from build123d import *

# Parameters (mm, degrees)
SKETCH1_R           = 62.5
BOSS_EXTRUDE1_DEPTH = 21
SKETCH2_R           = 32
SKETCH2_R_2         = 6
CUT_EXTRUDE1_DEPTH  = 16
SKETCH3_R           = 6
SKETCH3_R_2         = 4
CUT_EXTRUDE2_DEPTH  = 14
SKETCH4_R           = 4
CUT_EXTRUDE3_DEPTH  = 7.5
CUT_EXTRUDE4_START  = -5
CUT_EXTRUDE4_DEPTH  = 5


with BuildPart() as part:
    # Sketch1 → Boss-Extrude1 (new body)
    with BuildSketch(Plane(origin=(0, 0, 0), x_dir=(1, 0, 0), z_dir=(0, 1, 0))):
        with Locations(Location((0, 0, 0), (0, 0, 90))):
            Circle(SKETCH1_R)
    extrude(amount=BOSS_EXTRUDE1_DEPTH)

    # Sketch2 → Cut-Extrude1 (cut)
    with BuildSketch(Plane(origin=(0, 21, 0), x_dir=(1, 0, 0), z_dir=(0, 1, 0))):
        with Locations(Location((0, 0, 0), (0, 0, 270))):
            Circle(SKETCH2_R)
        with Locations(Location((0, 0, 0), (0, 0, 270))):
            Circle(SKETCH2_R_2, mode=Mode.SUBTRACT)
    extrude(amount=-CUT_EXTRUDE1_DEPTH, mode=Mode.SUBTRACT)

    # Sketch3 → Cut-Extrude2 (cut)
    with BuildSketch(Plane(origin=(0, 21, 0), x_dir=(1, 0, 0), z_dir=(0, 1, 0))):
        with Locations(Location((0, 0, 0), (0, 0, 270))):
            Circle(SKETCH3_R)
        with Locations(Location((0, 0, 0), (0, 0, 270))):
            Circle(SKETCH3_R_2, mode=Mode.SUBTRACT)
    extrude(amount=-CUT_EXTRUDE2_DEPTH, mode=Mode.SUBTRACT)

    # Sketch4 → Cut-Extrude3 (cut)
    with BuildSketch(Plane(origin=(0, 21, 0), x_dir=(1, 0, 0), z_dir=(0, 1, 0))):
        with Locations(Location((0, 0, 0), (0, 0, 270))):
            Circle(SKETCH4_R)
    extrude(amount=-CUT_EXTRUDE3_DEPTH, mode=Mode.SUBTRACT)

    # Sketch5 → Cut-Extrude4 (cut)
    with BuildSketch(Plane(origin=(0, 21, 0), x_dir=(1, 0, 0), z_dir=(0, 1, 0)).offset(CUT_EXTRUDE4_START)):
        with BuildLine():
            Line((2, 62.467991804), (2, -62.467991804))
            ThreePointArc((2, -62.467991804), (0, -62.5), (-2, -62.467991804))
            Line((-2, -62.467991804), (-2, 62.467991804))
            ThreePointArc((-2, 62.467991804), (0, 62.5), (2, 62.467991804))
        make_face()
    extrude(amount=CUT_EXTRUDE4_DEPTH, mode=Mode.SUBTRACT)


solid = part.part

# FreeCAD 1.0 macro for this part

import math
import FreeCAD as App
import Part
import Sketcher
from FreeCAD import Vector
Q = App.Units.Quantity

doc = App.newDocument("Part")
params = doc.addObject("Spreadsheet::Sheet", "Params")
for row, (alias, value) in enumerate([
    ("sketch1_diameter", "125 mm"),
    ("pad1_length", "21 mm"),
    ("sketch2_diameter", "64 mm"),
    ("sketch2_diameter2", "12 mm"),
    ("pocket1_length", "16 mm"),
    ("sketch3_diameter", "12 mm"),
    ("sketch3_diameter2", "8 mm"),
    ("pocket2_length", "14 mm"),
    ("sketch4_diameter", "8 mm"),
    ("pocket3_length", "7.5 mm"),
    ("sketch5_radius", "62.5 mm"),
    ("pocket4_length", "5 mm"),
], start=1):
    params.set(f"A{row}", alias)
    params.set(f"B{row}", "=" + value)
    params.setAlias(f"B{row}", alias)

body = doc.addObject("PartDesign::Body", "Body")

# Sketch on XZ plane
sketch1 = body.newObject("Sketcher::SketchObject", "Sketch")
sketch1.AttachmentSupport = (doc.getObject("XZ_Plane"), [""])
sketch1.MapMode = "FlatFace"
sketch1.addGeometry(Part.Circle(Vector(0, 0, 0), Vector(0, 0, 1), 62), False)
sketch1.addConstraint([
    Sketcher.Constraint("Coincident", 0, 3, -1, 1),
    Sketcher.Constraint("Diameter", 0, Q("125 mm")),
])
sketch1.setExpression("Constraints[1]", "Params.sketch1_diameter")
pad1 = body.newObject("PartDesign::Pad", "Pad")
pad1.Profile = sketch1
pad1.setExpression("Length", "Params.pad1_length")
pad1.Reversed = True

# Sketch on XZ plane
sketch2 = body.newObject("Sketcher::SketchObject", "Sketch001")
sketch2.AttachmentSupport = (doc.getObject("XZ_Plane"), [""])
sketch2.MapMode = "FlatFace"
sketch2.AttachmentOffset = App.Placement(Vector(0, 0, -21), App.Rotation())
sketch2.addGeometry([
    Part.Circle(Vector(0, 0, 0), Vector(0, 0, 1), 32),
    Part.Circle(Vector(0, 0, 0), Vector(0, 0, 1), 6),
], False)
sketch2.addConstraint([
    Sketcher.Constraint("Coincident", 0, 3, -1, 1),
    Sketcher.Constraint("Coincident", 1, 3, -1, 1),
    Sketcher.Constraint("Diameter", 0, Q("64 mm")),
    Sketcher.Constraint("Diameter", 1, Q("12 mm")),
])
sketch2.setExpression("Constraints[2]", "Params.sketch2_diameter")
sketch2.setExpression("Constraints[3]", "Params.sketch2_diameter2")
pocket1 = body.newObject("PartDesign::Pocket", "Pocket")
pocket1.Profile = sketch2
pocket1.setExpression("Length", "Params.pocket1_length")
pocket1.Reversed = True

# Sketch on XZ plane
sketch3 = body.newObject("Sketcher::SketchObject", "Sketch002")
sketch3.AttachmentSupport = (doc.getObject("XZ_Plane"), [""])
sketch3.MapMode = "FlatFace"
sketch3.AttachmentOffset = App.Placement(Vector(0, 0, -21), App.Rotation())
sketch3.addGeometry([
    Part.Circle(Vector(0, 0, 0), Vector(0, 0, 1), 6),
    Part.Circle(Vector(0, 0, 0), Vector(0, 0, 1), 4),
], False)
sketch3.addConstraint([
    Sketcher.Constraint("Coincident", 0, 3, -1, 1),
    Sketcher.Constraint("Coincident", 1, 3, -1, 1),
    Sketcher.Constraint("Diameter", 0, Q("12 mm")),
    Sketcher.Constraint("Diameter", 1, Q("8 mm")),
])
sketch3.setExpression("Constraints[2]", "Params.sketch3_diameter")
sketch3.setExpression("Constraints[3]", "Params.sketch3_diameter2")
pocket2 = body.newObject("PartDesign::Pocket", "Pocket001")
pocket2.Profile = sketch3
pocket2.setExpression("Length", "Params.pocket2_length")
pocket2.Reversed = True

# Sketch on XZ plane
sketch4 = body.newObject("Sketcher::SketchObject", "Sketch003")
sketch4.AttachmentSupport = (doc.getObject("XZ_Plane"), [""])
sketch4.MapMode = "FlatFace"
sketch4.AttachmentOffset = App.Placement(Vector(0, 0, -21), App.Rotation())
sketch4.addGeometry(Part.Circle(Vector(0, 0, 0), Vector(0, 0, 1), 4), False)
sketch4.addConstraint([
    Sketcher.Constraint("Coincident", 0, 3, -1, 1),
    Sketcher.Constraint("Diameter", 0, Q("8 mm")),
])
sketch4.setExpression("Constraints[1]", "Params.sketch4_diameter")
pocket3 = body.newObject("PartDesign::Pocket", "Pocket002")
pocket3.Profile = sketch4
pocket3.setExpression("Length", "Params.pocket3_length")
pocket3.Reversed = True

# Sketch on XZ plane
sketch5 = body.newObject("Sketcher::SketchObject", "Sketch004")
sketch5.AttachmentSupport = (doc.getObject("XZ_Plane"), [""])
sketch5.MapMode = "FlatFace"
sketch5.AttachmentOffset = App.Placement(Vector(0, 0, -16), App.Rotation())
sketch5.addGeometry([
    Part.LineSegment(Vector(2, 62.5, 0), Vector(2, -62.5, 0)),
    Part.ArcOfCircle(Part.Circle(Vector(0, 0, 0), Vector(0, 0, 1), 62.5), math.radians(-91.83), math.radians(-88.17)),
    Part.LineSegment(Vector(-2, -62.5, 0), Vector(-2, 62.5, 0)),
    Part.ArcOfCircle(Part.Circle(Vector(0, 0, 0), Vector(0, 0, 1), 62.5), math.radians(88.17), math.radians(91.83)),
], False)
sketch5.addConstraint([
    Sketcher.Constraint("Coincident", 0, 2, 1, 2),
    Sketcher.Constraint("Coincident", 1, 1, 2, 1),
    Sketcher.Constraint("Coincident", 2, 2, 3, 2),
    Sketcher.Constraint("Coincident", 3, 1, 0, 1),
    Sketcher.Constraint("Vertical", 0),
    Sketcher.Constraint("Vertical", 2),
    Sketcher.Constraint("Coincident", 1, 3, -1, 1),
    Sketcher.Constraint("Coincident", 3, 3, -1, 1),
    Sketcher.Constraint("Equal", 1, 3),
    Sketcher.Constraint("Horizontal", 0, 2, 1, 1),
    Sketcher.Constraint("Radius", 1, Q("62.5 mm")),
    Sketcher.Constraint("DistanceX", -1, 1, 0, 2, Q("2 mm")),
])
sketch5.setExpression("Constraints[10]", "Params.sketch5_radius")
pocket4 = body.newObject("PartDesign::Pocket", "Pocket003")
pocket4.Profile = sketch5
pocket4.setExpression("Length", "Params.pocket4_length")

doc.recompute()
